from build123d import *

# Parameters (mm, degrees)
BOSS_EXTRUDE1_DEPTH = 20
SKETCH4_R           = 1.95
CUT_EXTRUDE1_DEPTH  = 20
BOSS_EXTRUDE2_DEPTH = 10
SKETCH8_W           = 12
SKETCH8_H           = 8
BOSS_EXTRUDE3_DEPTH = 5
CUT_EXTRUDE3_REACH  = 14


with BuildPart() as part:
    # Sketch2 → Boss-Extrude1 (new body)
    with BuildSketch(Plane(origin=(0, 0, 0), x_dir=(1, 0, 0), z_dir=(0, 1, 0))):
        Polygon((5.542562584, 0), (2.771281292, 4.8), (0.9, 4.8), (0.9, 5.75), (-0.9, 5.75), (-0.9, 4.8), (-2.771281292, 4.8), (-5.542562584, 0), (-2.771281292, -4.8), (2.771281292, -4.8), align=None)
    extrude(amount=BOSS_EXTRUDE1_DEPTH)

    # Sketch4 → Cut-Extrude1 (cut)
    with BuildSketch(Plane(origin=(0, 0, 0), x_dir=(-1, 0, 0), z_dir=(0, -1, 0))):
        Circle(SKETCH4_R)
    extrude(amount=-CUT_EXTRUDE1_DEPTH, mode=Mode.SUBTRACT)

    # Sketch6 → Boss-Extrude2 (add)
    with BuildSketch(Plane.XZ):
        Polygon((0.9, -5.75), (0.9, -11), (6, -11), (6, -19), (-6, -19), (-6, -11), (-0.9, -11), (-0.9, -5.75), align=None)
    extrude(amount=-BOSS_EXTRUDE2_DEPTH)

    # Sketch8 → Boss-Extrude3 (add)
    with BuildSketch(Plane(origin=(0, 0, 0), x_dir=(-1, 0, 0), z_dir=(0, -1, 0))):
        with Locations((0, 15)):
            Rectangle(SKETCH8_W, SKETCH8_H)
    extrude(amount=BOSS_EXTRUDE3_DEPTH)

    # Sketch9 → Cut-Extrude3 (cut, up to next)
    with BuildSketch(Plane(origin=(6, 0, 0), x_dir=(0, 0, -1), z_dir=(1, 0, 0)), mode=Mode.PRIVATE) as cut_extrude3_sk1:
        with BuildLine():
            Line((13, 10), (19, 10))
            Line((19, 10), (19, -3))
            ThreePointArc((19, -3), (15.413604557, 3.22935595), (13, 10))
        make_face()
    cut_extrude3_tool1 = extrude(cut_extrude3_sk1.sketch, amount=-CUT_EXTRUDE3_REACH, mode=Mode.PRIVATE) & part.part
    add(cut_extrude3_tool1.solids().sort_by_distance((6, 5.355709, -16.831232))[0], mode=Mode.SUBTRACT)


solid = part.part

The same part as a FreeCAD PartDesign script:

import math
import FreeCAD as App
import Part
import Sketcher
Q = App.Units.Quantity

doc = App.newDocument("Part")
body = doc.addObject("PartDesign::Body", "Body")

# Sketch on XZ plane
sketch1 = doc.addObject("Sketcher::SketchObject", "Sketch")
body.addObject(sketch1)
sketch1.AttachmentSupport = (doc.XZ_Plane, [""])
sketch1.MapMode = "FlatFace"
sketch1.addGeometry([
    Part.LineSegment(App.Vector(5.5, 0, 0), App.Vector(2.8, -4.8, 0)),  # 0
    Part.LineSegment(App.Vector(2.8, -4.8, 0), App.Vector(0.9, -4.8, 0)),  # 1
    Part.LineSegment(App.Vector(0.9, -4.8, 0), App.Vector(0.9, -5.8, 0)),  # 2
    Part.LineSegment(App.Vector(0.9, -5.8, 0), App.Vector(-0.9, -5.8, 0)),  # 3
    Part.LineSegment(App.Vector(-0.9, -5.8, 0), App.Vector(-0.9, -4.8, 0)),  # 4
    Part.LineSegment(App.Vector(-0.9, -4.8, 0), App.Vector(-2.8, -4.8, 0)),  # 5
    Part.LineSegment(App.Vector(-2.8, -4.8, 0), App.Vector(-5.5, 0, 0)),  # 6
    Part.LineSegment(App.Vector(-5.5, 0, 0), App.Vector(-2.8, 4.8, 0)),  # 7
    Part.LineSegment(App.Vector(-2.8, 4.8, 0), App.Vector(2.8, 4.8, 0)),  # 8
    Part.LineSegment(App.Vector(2.8, 4.8, 0), App.Vector(5.5, 0, 0)),  # 9
], False)
sketch1.addConstraint([
    Sketcher.Constraint("Coincident", 0, 2, 1, 1),
    Sketcher.Constraint("Coincident", 1, 2, 2, 1),
    Sketcher.Constraint("Coincident", 2, 2, 3, 1),
    Sketcher.Constraint("Coincident", 3, 2, 4, 1),
    Sketcher.Constraint("Coincident", 4, 2, 5, 1),
    Sketcher.Constraint("Coincident", 5, 2, 6, 1),
    Sketcher.Constraint("Coincident", 6, 2, 7, 1),
    Sketcher.Constraint("Coincident", 7, 2, 8, 1),
    Sketcher.Constraint("Coincident", 8, 2, 9, 1),
    Sketcher.Constraint("Coincident", 9, 2, 0, 1),
    Sketcher.Constraint("Horizontal", 1),
    Sketcher.Constraint("Vertical", 2),
    Sketcher.Constraint("Horizontal", 3),
    Sketcher.Constraint("Vertical", 4),
    Sketcher.Constraint("Horizontal", 5),
    Sketcher.Constraint("Horizontal", 8),
    Sketcher.Constraint("Symmetric", 0, 2, 7, 2, -1, 1),
    Sketcher.Constraint("Symmetric", 5, 2, 8, 2, -1, 1),
    Sketcher.Constraint("Symmetric", 6, 2, 9, 2, -1, 1),
    Sketcher.Constraint("PointOnObject", 6, 2, -1),
    Sketcher.Constraint("Vertical", 5, 2, 7, 2),
    Sketcher.Constraint("Equal", 1, 5),
    Sketcher.Constraint("Angle", 0, Q("-120 deg")),
    Sketcher.Constraint("DistanceX", 3, 2, 3, 1, 1.8),
    Sketcher.Constraint("DistanceY", 2, 2, 2, 1, 0.95),
    Sketcher.Constraint("DistanceY", 0, 2, -1, 1, 4.8),
    Sketcher.Constraint("DistanceX", 1, 2, 1, 1, 1.871281),
])
pad1 = doc.addObject("PartDesign::Pad", "Pad")
body.addObject(pad1)
pad1.Profile = sketch1
pad1.Length = 20
pad1.Reversed = True

# Sketch on XZ plane
sketch2 = doc.addObject("Sketcher::SketchObject", "Sketch001")
body.addObject(sketch2)
sketch2.AttachmentSupport = (doc.XZ_Plane, [""])
sketch2.MapMode = "FlatFace"
sketch2.addGeometry(Part.Circle(App.Vector(0, 0, 0), App.Vector(0, 0, 1), 1.9), False)
sketch2.addConstraint([
    Sketcher.Constraint("Coincident", 0, 3, -1, 1),
    Sketcher.Constraint("Diameter", 0, 3.9),
])
pocket1 = doc.addObject("PartDesign::Pocket", "Pocket")
body.addObject(pocket1)
pocket1.Profile = sketch2
pocket1.Length = 20

# Sketch on XZ plane
sketch3 = doc.addObject("Sketcher::SketchObject", "Sketch002")
body.addObject(sketch3)
sketch3.AttachmentSupport = (doc.XZ_Plane, [""])
sketch3.MapMode = "FlatFace"
sketch3.addGeometry([
    Part.LineSegment(App.Vector(0.9, -11, 0), App.Vector(0.9, -5.8, 0)),  # 0
    Part.LineSegment(App.Vector(0.9, -5.8, 0), App.Vector(-0.9, -5.8, 0)),  # 1
    Part.LineSegment(App.Vector(-0.9, -5.8, 0), App.Vector(-0.9, -11, 0)),  # 2
    Part.LineSegment(App.Vector(-0.9, -11, 0), App.Vector(-6, -11, 0)),  # 3
    Part.LineSegment(App.Vector(-6, -11, 0), App.Vector(-6, -19, 0)),  # 4
    Part.LineSegment(App.Vector(-6, -19, 0), App.Vector(6, -19, 0)),  # 5
    Part.LineSegment(App.Vector(6, -19, 0), App.Vector(6, -11, 0)),  # 6
    Part.LineSegment(App.Vector(6, -11, 0), App.Vector(0.9, -11, 0)),  # 7
], False)
sketch3.addConstraint([
    Sketcher.Constraint("Coincident", 0, 2, 1, 1),
    Sketcher.Constraint("Coincident", 1, 2, 2, 1),
    Sketcher.Constraint("Coincident", 2, 2, 3, 1),
    Sketcher.Constraint("Coincident", 3, 2, 4, 1),
    Sketcher.Constraint("Coincident", 4, 2, 5, 1),
    Sketcher.Constraint("Coincident", 5, 2, 6, 1),
    Sketcher.Constraint("Coincident", 6, 2, 7, 1),
    Sketcher.Constraint("Coincident", 7, 2, 0, 1),
    Sketcher.Constraint("Vertical", 0),
    Sketcher.Constraint("Horizontal", 1),
    Sketcher.Constraint("Vertical", 2),
    Sketcher.Constraint("Horizontal", 3),
    Sketcher.Constraint("Vertical", 4),
    Sketcher.Constraint("Horizontal", 5),
    Sketcher.Constraint("Vertical", 6),
    Sketcher.Constraint("Horizontal", 7),
    Sketcher.Constraint("Symmetric", 3, 2, 6, 2, -2),
    Sketcher.Constraint("Equal", 3, 7),
    Sketcher.Constraint("DistanceX", 5, 1, 5, 2, 12.0),
    Sketcher.Constraint("DistanceY", 4, 2, 4, 1, 8.0),
    Sketcher.Constraint("DistanceX", 1, 2, 1, 1, 1.8),
    Sketcher.Constraint("DistanceY", 2, 2, -1, 1, 11.0),
    Sketcher.Constraint("DistanceY", 0, 1, 0, 2, 5.25),
])
pad2 = doc.addObject("PartDesign::Pad", "Pad001")
body.addObject(pad2)
pad2.Profile = sketch3
pad2.Length = 10
pad2.Reversed = True

# Sketch on XZ plane
sketch4 = doc.addObject("Sketcher::SketchObject", "Sketch003")
body.addObject(sketch4)
sketch4.AttachmentSupport = (doc.XZ_Plane, [""])
sketch4.MapMode = "FlatFace"
sketch4.addGeometry([
    Part.LineSegment(App.Vector(6, -19, 0), App.Vector(6, -11, 0)),
    Part.LineSegment(App.Vector(6, -11, 0), App.Vector(-6, -11, 0)),
    Part.LineSegment(App.Vector(-6, -11, 0), App.Vector(-6, -19, 0)),
    Part.LineSegment(App.Vector(-6, -19, 0), App.Vector(6, -19, 0)),
], False)
sketch4.addConstraint([
    Sketcher.Constraint("Coincident", 0, 2, 1, 1),
    Sketcher.Constraint("Coincident", 1, 2, 2, 1),
    Sketcher.Constraint("Coincident", 2, 2, 3, 1),
    Sketcher.Constraint("Coincident", 3, 2, 0, 1),
    Sketcher.Constraint("Vertical", 0),
    Sketcher.Constraint("Horizontal", 1),
    Sketcher.Constraint("Vertical", 2),
    Sketcher.Constraint("Horizontal", 3),
    Sketcher.Constraint("DistanceX", 1, 2, 1, 1, 12.0),
    Sketcher.Constraint("DistanceY", 0, 1, 0, 2, 8.0),
    Sketcher.Constraint("DistanceX", -1, 1, 0, 2, 6.0),
    Sketcher.Constraint("DistanceY", 0, 2, -1, 1, 11.0),
])
pad3 = doc.addObject("PartDesign::Pad", "Pad002")
body.addObject(pad3)
pad3.Profile = sketch4
pad3.Length = 5

# Sketch on YZ plane
sketch5 = doc.addObject("Sketcher::SketchObject", "Sketch004")
body.addObject(sketch5)
sketch5.AttachmentSupport = (doc.YZ_Plane, [""])
sketch5.MapMode = "FlatFace"
sketch5.AttachmentOffset = App.Placement(App.Vector(0, 0, 6), App.Rotation())
sketch5.addGeometry([
    Part.LineSegment(App.Vector(10, -19, 0), App.Vector(10, -13, 0)),
    Part.ArcOfCircle(Part.Circle(App.Vector(20, -52, 0), App.Vector(0, 0, 1), 40), math.radians(104), math.radians(125)),
    Part.LineSegment(App.Vector(-3, -19, 0), App.Vector(10, -19, 0)),
], False)
sketch5.addConstraint([
    Sketcher.Constraint("Coincident", 0, 2, 1, 1),
    Sketcher.Constraint("Coincident", 1, 2, 2, 1),
    Sketcher.Constraint("Coincident", 2, 2, 0, 1),
    Sketcher.Constraint("Vertical", 0),
    Sketcher.Constraint("Horizontal", 2),
    Sketcher.Constraint("Radius", 1, 40.0),
    Sketcher.Constraint("DistanceX", 2, 1, 2, 2, 13.0),
    Sketcher.Constraint("DistanceY", 0, 1, 0, 2, 6.0),
    Sketcher.Constraint("DistanceX", -1, 1, 0, 2, 10.0),
    Sketcher.Constraint("DistanceY", 0, 2, -1, 1, 13.0),
])
pocket2 = doc.addObject("PartDesign::Pocket", "Pocket001")
body.addObject(pocket2)
pocket2.Profile = sketch5
pocket2.Type = "UpToFirst"

doc.recompute()
